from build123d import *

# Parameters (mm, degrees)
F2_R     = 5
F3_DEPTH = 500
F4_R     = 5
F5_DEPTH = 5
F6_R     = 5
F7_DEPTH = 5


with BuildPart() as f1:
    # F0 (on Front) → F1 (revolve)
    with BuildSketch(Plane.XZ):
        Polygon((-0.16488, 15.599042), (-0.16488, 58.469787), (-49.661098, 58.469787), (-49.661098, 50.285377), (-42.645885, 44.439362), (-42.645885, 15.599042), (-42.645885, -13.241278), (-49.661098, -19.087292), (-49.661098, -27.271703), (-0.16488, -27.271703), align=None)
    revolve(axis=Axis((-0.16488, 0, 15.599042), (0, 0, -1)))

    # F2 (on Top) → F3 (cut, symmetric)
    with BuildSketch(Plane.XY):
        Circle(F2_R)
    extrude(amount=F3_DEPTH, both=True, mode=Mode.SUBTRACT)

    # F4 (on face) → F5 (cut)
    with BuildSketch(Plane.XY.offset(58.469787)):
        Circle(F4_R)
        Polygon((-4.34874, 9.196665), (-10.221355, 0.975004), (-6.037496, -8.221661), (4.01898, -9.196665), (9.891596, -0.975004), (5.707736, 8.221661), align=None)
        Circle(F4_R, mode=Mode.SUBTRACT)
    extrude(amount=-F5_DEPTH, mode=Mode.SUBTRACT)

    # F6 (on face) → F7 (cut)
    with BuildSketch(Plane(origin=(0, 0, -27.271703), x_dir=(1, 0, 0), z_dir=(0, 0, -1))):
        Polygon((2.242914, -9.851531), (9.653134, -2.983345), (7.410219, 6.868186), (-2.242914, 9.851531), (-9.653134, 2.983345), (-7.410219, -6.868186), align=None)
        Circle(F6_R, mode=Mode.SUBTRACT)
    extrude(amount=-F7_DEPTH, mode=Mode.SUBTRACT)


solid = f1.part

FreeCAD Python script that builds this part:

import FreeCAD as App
import Part
import Sketcher
Q = App.Units.Quantity

doc = App.newDocument("Part")
body = doc.addObject("PartDesign::Body", "Body")

sketch1 = body.newObject("Sketcher::SketchObject", "Sketch")
sketch1.AttachmentSupport = (doc.getObject("XZ_Plane"), [""])
sketch1.MapMode = "FlatFace"
sketch1.addGeometry(Part.LineSegment(App.Vector(0, 58, 0), App.Vector(-50, 58, 0)), False)
sketch1.addGeometry(Part.LineSegment(App.Vector(-50, 58, 0), App.Vector(-50, 50, 0)), False)
sketch1.addGeometry(Part.LineSegment(App.Vector(-50, 50, 0), App.Vector(-43, 44, 0)), False)
sketch1.addGeometry(Part.LineSegment(App.Vector(-43, 44, 0), App.Vector(-43, -13, 0)), False)
sketch1.addGeometry(Part.LineSegment(App.Vector(-43, -13, 0), App.Vector(-50, -19, 0)), False)
sketch1.addGeometry(Part.LineSegment(App.Vector(-50, -19, 0), App.Vector(-50, -27, 0)), False)
sketch1.addGeometry(Part.LineSegment(App.Vector(-50, -27, 0), App.Vector(0, -27, 0)), False)
sketch1.addGeometry(Part.LineSegment(App.Vector(0, -27, 0), App.Vector(0, 58, 0)), False)
sketch1.addGeometry(Part.LineSegment(App.Vector(0, 58, 0), App.Vector(0, -27, 0)), True)
sketch1.addConstraint(Sketcher.Constraint("Coincident", 0, 2, 1, 1))
sketch1.addConstraint(Sketcher.Constraint("Coincident", 1, 2, 2, 1))
sketch1.addConstraint(Sketcher.Constraint("Coincident", 2, 2, 3, 1))
sketch1.addConstraint(Sketcher.Constraint("Coincident", 3, 2, 4, 1))
sketch1.addConstraint(Sketcher.Constraint("Coincident", 4, 2, 5, 1))
sketch1.addConstraint(Sketcher.Constraint("Coincident", 5, 2, 6, 1))
sketch1.addConstraint(Sketcher.Constraint("Coincident", 6, 2, 7, 1))
sketch1.addConstraint(Sketcher.Constraint("Coincident", 7, 2, 0, 1))
sketch1.addConstraint(Sketcher.Constraint("Horizontal", 0))
sketch1.addConstraint(Sketcher.Constraint("Vertical", 1))
sketch1.addConstraint(Sketcher.Constraint("Vertical", 3))
sketch1.addConstraint(Sketcher.Constraint("Vertical", 5))
sketch1.addConstraint(Sketcher.Constraint("Horizontal", 6))
sketch1.addConstraint(Sketcher.Constraint("Vertical", 7))
sketch1.addConstraint(Sketcher.Constraint("Vertical", 8))
sketch1.addConstraint(Sketcher.Constraint("Coincident", 8, 1, 7, 2))
sketch1.addConstraint(Sketcher.Constraint("Horizontal", 5, 2, 8, 2))
sketch1.addConstraint(Sketcher.Constraint("Vertical", 1, 2, 4, 2))
sketch1.addConstraint(Sketcher.Constraint("Equal", 1, 5))
sketch1.addConstraint(Sketcher.Constraint("Equal", 2, 4))
sketch1.addConstraint(Sketcher.Constraint("DistanceX", 0, 2, 0, 1, Q("49.496218 mm")))
sketch1.addConstraint(Sketcher.Constraint("DistanceY", 1, 2, 1, 1, Q("8.18441 mm")))
sketch1.addConstraint(Sketcher.Constraint("DistanceY", 3, 2, 3, 1, Q("57.68064 mm")))
sketch1.addConstraint(Sketcher.Constraint("DistanceY", 7, 1, 7, 2, Q("85.74149 mm")))
sketch1.addConstraint(Sketcher.Constraint("DistanceX", 0, 2, -1, 1, Q("49.661098 mm")))
sketch1.addConstraint(Sketcher.Constraint("Distance", 2, Q("9.131764 mm")))
sketch1.addConstraint(Sketcher.Constraint("DistanceY", -1, 1, 0, 2, Q("58.469787 mm")))
revolution = body.newObject("PartDesign::Revolution", "Revolution")
revolution.Profile = sketch1
revolution.ReferenceAxis = (sketch1, ["Axis0"])
revolution.Angle = 360

sketch2 = body.newObject("Sketcher::SketchObject", "Sketch001")
sketch2.AttachmentSupport = (doc.getObject("XY_Plane"), [""])
sketch2.MapMode = "FlatFace"
sketch2.addGeometry(Part.Circle(App.Vector(0, 0, 0), App.Vector(0, 0, 1), 5), False)
sketch2.addConstraint(Sketcher.Constraint("Coincident", 0, 3, -1, 1))
sketch2.addConstraint(Sketcher.Constraint("Diameter", 0, Q("10 mm")))
pocket1 = body.newObject("PartDesign::Pocket", "Pocket")
pocket1.Profile = sketch2
pocket1.Length = 1000
pocket1.Midplane = True

sketch3 = body.newObject("Sketcher::SketchObject", "Sketch002")
sketch3.AttachmentSupport = (doc.getObject("XY_Plane"), [""])
sketch3.MapMode = "FlatFace"
sketch3.AttachmentOffset = App.Placement(App.Vector(0, 0, 58.469787), App.Rotation())
sketch3.addGeometry(Part.LineSegment(App.Vector(-4, 9, 0), App.Vector(-10, 1, 0)), False)
sketch3.addGeometry(Part.LineSegment(App.Vector(-10, 1, 0), App.Vector(-6, -8, 0)), False)
sketch3.addGeometry(Part.LineSegment(App.Vector(-6, -8, 0), App.Vector(4, -9, 0)), False)
sketch3.addGeometry(Part.LineSegment(App.Vector(4, -9, 0), App.Vector(10, -1, 0)), False)
sketch3.addGeometry(Part.LineSegment(App.Vector(10, -1, 0), App.Vector(6, 8, 0)), False)
sketch3.addGeometry(Part.LineSegment(App.Vector(6, 8, 0), App.Vector(-4, 9, 0)), False)
sketch3.addGeometry(Part.Circle(App.Vector(0, 0, 0), App.Vector(0, 0, 1), 5), False)
sketch3.addConstraint(Sketcher.Constraint("Coincident", 0, 2, 1, 1))
sketch3.addConstraint(Sketcher.Constraint("Coincident", 1, 2, 2, 1))
sketch3.addConstraint(Sketcher.Constraint("Coincident", 2, 2, 3, 1))
sketch3.addConstraint(Sketcher.Constraint("Coincident", 3, 2, 4, 1))
sketch3.addConstraint(Sketcher.Constraint("Coincident", 4, 2, 5, 1))
sketch3.addConstraint(Sketcher.Constraint("Coincident", 5, 2, 0, 1))
sketch3.addConstraint(Sketcher.Constraint("Coincident", 6, 3, -1, 1))
sketch3.addConstraint(Sketcher.Constraint("Parallel", 0, 3))
sketch3.addConstraint(Sketcher.Constraint("Parallel", 1, 4))
sketch3.addConstraint(Sketcher.Constraint("Parallel", 2, 5))
sketch3.addConstraint(Sketcher.Constraint("Equal", 0, 1))
sketch3.addConstraint(Sketcher.Constraint("Equal", 1, 2))
sketch3.addConstraint(Sketcher.Constraint("Equal", 2, 3))
sketch3.addConstraint(Sketcher.Constraint("Diameter", 6, Q("10 mm")))
sketch3.addConstraint(Sketcher.Constraint("Distance", 0, Q("10.103629 mm")))
sketch3.addConstraint(Sketcher.Constraint("DistanceY", 1, 2, -1, 1, Q("8.221661 mm")))
sketch3.addConstraint(Sketcher.Constraint("DistanceX", -1, 1, 2, 2, Q("4.01898 mm")))
sketch3.addConstraint(Sketcher.Constraint("DistanceY", -1, 1, 4, 2, Q("8.221661 mm")))
sketch3.addConstraint(Sketcher.Constraint("DistanceX", 5, 2, -1, 1, Q("4.34874 mm")))
sketch3.addConstraint(Sketcher.Constraint("DistanceX", 0, 2, 1, 2, Q("4.183859 mm")))
pocket2 = body.newObject("PartDesign::Pocket", "Pocket001")
pocket2.Profile = sketch3
pocket2.Length = 5

sketch4 = body.newObject("Sketcher::SketchObject", "Sketch003")
sketch4.AttachmentSupport = (doc.getObject("XY_Plane"), [""])
sketch4.MapMode = "FlatFace"
sketch4.AttachmentOffset = App.Placement(App.Vector(0, 0, -27.271703), App.Rotation())
sketch4.addGeometry(Part.LineSegment(App.Vector(2, 10, 0), App.Vector(10, 3, 0)), False)
sketch4.addGeometry(Part.LineSegment(App.Vector(10, 3, 0), App.Vector(7, -7, 0)), False)
sketch4.addGeometry(Part.LineSegment(App.Vector(7, -7, 0), App.Vector(-2, -10, 0)), False)
sketch4.addGeometry(Part.LineSegment(App.Vector(-2, -10, 0), App.Vector(-10, -3, 0)), False)
sketch4.addGeometry(Part.LineSegment(App.Vector(-10, -3, 0), App.Vector(-7, 7, 0)), False)
sketch4.addGeometry(Part.LineSegment(App.Vector(-7, 7, 0), App.Vector(2, 10, 0)), False)
sketch4.addGeometry(Part.Circle(App.Vector(0, 0, 0), App.Vector(0, 0, 1), 5), False)
sketch4.addConstraint(Sketcher.Constraint("Coincident", 0, 2, 1, 1))
sketch4.addConstraint(Sketcher.Constraint("Coincident", 1, 2, 2, 1))
sketch4.addConstraint(Sketcher.Constraint("Coincident", 2, 2, 3, 1))
sketch4.addConstraint(Sketcher.Constraint("Coincident", 3, 2, 4, 1))
sketch4.addConstraint(Sketcher.Constraint("Coincident", 4, 2, 5, 1))
sketch4.addConstraint(Sketcher.Constraint("Coincident", 5, 2, 0, 1))
sketch4.addConstraint(Sketcher.Constraint("Coincident", 6, 3, -1, 1))
sketch4.addConstraint(Sketcher.Constraint("Symmetric", 0, 2, 3, 2, -1, 1))
sketch4.addConstraint(Sketcher.Constraint("Symmetric", 1, 2, 4, 2, -1, 1))
sketch4.addConstraint(Sketcher.Constraint("Symmetric", 2, 2, 5, 2, -1, 1))
sketch4.addConstraint(Sketcher.Constraint("Equal", 0, 1))
sketch4.addConstraint(Sketcher.Constraint("Equal", 1, 2))
sketch4.addConstraint(Sketcher.Constraint("Diameter", 6, Q("10 mm")))
sketch4.addConstraint(Sketcher.Constraint("Distance", 0, Q("10.10363 mm")))
sketch4.addConstraint(Sketcher.Constraint("DistanceX", -1, 1, 1, 2, Q("7.410219 mm")))
sketch4.addConstraint(Sketcher.Constraint("DistanceY", 2, 2, -1, 1, Q("9.851531 mm")))
sketch4.addConstraint(Sketcher.Constraint("DistanceY", 1, 2, 0, 2, Q("9.851531 mm")))
pocket3 = body.newObject("PartDesign::Pocket", "Pocket002")
pocket3.Profile = sketch4
pocket3.Length = 5
pocket3.Reversed = True

doc.recompute()
